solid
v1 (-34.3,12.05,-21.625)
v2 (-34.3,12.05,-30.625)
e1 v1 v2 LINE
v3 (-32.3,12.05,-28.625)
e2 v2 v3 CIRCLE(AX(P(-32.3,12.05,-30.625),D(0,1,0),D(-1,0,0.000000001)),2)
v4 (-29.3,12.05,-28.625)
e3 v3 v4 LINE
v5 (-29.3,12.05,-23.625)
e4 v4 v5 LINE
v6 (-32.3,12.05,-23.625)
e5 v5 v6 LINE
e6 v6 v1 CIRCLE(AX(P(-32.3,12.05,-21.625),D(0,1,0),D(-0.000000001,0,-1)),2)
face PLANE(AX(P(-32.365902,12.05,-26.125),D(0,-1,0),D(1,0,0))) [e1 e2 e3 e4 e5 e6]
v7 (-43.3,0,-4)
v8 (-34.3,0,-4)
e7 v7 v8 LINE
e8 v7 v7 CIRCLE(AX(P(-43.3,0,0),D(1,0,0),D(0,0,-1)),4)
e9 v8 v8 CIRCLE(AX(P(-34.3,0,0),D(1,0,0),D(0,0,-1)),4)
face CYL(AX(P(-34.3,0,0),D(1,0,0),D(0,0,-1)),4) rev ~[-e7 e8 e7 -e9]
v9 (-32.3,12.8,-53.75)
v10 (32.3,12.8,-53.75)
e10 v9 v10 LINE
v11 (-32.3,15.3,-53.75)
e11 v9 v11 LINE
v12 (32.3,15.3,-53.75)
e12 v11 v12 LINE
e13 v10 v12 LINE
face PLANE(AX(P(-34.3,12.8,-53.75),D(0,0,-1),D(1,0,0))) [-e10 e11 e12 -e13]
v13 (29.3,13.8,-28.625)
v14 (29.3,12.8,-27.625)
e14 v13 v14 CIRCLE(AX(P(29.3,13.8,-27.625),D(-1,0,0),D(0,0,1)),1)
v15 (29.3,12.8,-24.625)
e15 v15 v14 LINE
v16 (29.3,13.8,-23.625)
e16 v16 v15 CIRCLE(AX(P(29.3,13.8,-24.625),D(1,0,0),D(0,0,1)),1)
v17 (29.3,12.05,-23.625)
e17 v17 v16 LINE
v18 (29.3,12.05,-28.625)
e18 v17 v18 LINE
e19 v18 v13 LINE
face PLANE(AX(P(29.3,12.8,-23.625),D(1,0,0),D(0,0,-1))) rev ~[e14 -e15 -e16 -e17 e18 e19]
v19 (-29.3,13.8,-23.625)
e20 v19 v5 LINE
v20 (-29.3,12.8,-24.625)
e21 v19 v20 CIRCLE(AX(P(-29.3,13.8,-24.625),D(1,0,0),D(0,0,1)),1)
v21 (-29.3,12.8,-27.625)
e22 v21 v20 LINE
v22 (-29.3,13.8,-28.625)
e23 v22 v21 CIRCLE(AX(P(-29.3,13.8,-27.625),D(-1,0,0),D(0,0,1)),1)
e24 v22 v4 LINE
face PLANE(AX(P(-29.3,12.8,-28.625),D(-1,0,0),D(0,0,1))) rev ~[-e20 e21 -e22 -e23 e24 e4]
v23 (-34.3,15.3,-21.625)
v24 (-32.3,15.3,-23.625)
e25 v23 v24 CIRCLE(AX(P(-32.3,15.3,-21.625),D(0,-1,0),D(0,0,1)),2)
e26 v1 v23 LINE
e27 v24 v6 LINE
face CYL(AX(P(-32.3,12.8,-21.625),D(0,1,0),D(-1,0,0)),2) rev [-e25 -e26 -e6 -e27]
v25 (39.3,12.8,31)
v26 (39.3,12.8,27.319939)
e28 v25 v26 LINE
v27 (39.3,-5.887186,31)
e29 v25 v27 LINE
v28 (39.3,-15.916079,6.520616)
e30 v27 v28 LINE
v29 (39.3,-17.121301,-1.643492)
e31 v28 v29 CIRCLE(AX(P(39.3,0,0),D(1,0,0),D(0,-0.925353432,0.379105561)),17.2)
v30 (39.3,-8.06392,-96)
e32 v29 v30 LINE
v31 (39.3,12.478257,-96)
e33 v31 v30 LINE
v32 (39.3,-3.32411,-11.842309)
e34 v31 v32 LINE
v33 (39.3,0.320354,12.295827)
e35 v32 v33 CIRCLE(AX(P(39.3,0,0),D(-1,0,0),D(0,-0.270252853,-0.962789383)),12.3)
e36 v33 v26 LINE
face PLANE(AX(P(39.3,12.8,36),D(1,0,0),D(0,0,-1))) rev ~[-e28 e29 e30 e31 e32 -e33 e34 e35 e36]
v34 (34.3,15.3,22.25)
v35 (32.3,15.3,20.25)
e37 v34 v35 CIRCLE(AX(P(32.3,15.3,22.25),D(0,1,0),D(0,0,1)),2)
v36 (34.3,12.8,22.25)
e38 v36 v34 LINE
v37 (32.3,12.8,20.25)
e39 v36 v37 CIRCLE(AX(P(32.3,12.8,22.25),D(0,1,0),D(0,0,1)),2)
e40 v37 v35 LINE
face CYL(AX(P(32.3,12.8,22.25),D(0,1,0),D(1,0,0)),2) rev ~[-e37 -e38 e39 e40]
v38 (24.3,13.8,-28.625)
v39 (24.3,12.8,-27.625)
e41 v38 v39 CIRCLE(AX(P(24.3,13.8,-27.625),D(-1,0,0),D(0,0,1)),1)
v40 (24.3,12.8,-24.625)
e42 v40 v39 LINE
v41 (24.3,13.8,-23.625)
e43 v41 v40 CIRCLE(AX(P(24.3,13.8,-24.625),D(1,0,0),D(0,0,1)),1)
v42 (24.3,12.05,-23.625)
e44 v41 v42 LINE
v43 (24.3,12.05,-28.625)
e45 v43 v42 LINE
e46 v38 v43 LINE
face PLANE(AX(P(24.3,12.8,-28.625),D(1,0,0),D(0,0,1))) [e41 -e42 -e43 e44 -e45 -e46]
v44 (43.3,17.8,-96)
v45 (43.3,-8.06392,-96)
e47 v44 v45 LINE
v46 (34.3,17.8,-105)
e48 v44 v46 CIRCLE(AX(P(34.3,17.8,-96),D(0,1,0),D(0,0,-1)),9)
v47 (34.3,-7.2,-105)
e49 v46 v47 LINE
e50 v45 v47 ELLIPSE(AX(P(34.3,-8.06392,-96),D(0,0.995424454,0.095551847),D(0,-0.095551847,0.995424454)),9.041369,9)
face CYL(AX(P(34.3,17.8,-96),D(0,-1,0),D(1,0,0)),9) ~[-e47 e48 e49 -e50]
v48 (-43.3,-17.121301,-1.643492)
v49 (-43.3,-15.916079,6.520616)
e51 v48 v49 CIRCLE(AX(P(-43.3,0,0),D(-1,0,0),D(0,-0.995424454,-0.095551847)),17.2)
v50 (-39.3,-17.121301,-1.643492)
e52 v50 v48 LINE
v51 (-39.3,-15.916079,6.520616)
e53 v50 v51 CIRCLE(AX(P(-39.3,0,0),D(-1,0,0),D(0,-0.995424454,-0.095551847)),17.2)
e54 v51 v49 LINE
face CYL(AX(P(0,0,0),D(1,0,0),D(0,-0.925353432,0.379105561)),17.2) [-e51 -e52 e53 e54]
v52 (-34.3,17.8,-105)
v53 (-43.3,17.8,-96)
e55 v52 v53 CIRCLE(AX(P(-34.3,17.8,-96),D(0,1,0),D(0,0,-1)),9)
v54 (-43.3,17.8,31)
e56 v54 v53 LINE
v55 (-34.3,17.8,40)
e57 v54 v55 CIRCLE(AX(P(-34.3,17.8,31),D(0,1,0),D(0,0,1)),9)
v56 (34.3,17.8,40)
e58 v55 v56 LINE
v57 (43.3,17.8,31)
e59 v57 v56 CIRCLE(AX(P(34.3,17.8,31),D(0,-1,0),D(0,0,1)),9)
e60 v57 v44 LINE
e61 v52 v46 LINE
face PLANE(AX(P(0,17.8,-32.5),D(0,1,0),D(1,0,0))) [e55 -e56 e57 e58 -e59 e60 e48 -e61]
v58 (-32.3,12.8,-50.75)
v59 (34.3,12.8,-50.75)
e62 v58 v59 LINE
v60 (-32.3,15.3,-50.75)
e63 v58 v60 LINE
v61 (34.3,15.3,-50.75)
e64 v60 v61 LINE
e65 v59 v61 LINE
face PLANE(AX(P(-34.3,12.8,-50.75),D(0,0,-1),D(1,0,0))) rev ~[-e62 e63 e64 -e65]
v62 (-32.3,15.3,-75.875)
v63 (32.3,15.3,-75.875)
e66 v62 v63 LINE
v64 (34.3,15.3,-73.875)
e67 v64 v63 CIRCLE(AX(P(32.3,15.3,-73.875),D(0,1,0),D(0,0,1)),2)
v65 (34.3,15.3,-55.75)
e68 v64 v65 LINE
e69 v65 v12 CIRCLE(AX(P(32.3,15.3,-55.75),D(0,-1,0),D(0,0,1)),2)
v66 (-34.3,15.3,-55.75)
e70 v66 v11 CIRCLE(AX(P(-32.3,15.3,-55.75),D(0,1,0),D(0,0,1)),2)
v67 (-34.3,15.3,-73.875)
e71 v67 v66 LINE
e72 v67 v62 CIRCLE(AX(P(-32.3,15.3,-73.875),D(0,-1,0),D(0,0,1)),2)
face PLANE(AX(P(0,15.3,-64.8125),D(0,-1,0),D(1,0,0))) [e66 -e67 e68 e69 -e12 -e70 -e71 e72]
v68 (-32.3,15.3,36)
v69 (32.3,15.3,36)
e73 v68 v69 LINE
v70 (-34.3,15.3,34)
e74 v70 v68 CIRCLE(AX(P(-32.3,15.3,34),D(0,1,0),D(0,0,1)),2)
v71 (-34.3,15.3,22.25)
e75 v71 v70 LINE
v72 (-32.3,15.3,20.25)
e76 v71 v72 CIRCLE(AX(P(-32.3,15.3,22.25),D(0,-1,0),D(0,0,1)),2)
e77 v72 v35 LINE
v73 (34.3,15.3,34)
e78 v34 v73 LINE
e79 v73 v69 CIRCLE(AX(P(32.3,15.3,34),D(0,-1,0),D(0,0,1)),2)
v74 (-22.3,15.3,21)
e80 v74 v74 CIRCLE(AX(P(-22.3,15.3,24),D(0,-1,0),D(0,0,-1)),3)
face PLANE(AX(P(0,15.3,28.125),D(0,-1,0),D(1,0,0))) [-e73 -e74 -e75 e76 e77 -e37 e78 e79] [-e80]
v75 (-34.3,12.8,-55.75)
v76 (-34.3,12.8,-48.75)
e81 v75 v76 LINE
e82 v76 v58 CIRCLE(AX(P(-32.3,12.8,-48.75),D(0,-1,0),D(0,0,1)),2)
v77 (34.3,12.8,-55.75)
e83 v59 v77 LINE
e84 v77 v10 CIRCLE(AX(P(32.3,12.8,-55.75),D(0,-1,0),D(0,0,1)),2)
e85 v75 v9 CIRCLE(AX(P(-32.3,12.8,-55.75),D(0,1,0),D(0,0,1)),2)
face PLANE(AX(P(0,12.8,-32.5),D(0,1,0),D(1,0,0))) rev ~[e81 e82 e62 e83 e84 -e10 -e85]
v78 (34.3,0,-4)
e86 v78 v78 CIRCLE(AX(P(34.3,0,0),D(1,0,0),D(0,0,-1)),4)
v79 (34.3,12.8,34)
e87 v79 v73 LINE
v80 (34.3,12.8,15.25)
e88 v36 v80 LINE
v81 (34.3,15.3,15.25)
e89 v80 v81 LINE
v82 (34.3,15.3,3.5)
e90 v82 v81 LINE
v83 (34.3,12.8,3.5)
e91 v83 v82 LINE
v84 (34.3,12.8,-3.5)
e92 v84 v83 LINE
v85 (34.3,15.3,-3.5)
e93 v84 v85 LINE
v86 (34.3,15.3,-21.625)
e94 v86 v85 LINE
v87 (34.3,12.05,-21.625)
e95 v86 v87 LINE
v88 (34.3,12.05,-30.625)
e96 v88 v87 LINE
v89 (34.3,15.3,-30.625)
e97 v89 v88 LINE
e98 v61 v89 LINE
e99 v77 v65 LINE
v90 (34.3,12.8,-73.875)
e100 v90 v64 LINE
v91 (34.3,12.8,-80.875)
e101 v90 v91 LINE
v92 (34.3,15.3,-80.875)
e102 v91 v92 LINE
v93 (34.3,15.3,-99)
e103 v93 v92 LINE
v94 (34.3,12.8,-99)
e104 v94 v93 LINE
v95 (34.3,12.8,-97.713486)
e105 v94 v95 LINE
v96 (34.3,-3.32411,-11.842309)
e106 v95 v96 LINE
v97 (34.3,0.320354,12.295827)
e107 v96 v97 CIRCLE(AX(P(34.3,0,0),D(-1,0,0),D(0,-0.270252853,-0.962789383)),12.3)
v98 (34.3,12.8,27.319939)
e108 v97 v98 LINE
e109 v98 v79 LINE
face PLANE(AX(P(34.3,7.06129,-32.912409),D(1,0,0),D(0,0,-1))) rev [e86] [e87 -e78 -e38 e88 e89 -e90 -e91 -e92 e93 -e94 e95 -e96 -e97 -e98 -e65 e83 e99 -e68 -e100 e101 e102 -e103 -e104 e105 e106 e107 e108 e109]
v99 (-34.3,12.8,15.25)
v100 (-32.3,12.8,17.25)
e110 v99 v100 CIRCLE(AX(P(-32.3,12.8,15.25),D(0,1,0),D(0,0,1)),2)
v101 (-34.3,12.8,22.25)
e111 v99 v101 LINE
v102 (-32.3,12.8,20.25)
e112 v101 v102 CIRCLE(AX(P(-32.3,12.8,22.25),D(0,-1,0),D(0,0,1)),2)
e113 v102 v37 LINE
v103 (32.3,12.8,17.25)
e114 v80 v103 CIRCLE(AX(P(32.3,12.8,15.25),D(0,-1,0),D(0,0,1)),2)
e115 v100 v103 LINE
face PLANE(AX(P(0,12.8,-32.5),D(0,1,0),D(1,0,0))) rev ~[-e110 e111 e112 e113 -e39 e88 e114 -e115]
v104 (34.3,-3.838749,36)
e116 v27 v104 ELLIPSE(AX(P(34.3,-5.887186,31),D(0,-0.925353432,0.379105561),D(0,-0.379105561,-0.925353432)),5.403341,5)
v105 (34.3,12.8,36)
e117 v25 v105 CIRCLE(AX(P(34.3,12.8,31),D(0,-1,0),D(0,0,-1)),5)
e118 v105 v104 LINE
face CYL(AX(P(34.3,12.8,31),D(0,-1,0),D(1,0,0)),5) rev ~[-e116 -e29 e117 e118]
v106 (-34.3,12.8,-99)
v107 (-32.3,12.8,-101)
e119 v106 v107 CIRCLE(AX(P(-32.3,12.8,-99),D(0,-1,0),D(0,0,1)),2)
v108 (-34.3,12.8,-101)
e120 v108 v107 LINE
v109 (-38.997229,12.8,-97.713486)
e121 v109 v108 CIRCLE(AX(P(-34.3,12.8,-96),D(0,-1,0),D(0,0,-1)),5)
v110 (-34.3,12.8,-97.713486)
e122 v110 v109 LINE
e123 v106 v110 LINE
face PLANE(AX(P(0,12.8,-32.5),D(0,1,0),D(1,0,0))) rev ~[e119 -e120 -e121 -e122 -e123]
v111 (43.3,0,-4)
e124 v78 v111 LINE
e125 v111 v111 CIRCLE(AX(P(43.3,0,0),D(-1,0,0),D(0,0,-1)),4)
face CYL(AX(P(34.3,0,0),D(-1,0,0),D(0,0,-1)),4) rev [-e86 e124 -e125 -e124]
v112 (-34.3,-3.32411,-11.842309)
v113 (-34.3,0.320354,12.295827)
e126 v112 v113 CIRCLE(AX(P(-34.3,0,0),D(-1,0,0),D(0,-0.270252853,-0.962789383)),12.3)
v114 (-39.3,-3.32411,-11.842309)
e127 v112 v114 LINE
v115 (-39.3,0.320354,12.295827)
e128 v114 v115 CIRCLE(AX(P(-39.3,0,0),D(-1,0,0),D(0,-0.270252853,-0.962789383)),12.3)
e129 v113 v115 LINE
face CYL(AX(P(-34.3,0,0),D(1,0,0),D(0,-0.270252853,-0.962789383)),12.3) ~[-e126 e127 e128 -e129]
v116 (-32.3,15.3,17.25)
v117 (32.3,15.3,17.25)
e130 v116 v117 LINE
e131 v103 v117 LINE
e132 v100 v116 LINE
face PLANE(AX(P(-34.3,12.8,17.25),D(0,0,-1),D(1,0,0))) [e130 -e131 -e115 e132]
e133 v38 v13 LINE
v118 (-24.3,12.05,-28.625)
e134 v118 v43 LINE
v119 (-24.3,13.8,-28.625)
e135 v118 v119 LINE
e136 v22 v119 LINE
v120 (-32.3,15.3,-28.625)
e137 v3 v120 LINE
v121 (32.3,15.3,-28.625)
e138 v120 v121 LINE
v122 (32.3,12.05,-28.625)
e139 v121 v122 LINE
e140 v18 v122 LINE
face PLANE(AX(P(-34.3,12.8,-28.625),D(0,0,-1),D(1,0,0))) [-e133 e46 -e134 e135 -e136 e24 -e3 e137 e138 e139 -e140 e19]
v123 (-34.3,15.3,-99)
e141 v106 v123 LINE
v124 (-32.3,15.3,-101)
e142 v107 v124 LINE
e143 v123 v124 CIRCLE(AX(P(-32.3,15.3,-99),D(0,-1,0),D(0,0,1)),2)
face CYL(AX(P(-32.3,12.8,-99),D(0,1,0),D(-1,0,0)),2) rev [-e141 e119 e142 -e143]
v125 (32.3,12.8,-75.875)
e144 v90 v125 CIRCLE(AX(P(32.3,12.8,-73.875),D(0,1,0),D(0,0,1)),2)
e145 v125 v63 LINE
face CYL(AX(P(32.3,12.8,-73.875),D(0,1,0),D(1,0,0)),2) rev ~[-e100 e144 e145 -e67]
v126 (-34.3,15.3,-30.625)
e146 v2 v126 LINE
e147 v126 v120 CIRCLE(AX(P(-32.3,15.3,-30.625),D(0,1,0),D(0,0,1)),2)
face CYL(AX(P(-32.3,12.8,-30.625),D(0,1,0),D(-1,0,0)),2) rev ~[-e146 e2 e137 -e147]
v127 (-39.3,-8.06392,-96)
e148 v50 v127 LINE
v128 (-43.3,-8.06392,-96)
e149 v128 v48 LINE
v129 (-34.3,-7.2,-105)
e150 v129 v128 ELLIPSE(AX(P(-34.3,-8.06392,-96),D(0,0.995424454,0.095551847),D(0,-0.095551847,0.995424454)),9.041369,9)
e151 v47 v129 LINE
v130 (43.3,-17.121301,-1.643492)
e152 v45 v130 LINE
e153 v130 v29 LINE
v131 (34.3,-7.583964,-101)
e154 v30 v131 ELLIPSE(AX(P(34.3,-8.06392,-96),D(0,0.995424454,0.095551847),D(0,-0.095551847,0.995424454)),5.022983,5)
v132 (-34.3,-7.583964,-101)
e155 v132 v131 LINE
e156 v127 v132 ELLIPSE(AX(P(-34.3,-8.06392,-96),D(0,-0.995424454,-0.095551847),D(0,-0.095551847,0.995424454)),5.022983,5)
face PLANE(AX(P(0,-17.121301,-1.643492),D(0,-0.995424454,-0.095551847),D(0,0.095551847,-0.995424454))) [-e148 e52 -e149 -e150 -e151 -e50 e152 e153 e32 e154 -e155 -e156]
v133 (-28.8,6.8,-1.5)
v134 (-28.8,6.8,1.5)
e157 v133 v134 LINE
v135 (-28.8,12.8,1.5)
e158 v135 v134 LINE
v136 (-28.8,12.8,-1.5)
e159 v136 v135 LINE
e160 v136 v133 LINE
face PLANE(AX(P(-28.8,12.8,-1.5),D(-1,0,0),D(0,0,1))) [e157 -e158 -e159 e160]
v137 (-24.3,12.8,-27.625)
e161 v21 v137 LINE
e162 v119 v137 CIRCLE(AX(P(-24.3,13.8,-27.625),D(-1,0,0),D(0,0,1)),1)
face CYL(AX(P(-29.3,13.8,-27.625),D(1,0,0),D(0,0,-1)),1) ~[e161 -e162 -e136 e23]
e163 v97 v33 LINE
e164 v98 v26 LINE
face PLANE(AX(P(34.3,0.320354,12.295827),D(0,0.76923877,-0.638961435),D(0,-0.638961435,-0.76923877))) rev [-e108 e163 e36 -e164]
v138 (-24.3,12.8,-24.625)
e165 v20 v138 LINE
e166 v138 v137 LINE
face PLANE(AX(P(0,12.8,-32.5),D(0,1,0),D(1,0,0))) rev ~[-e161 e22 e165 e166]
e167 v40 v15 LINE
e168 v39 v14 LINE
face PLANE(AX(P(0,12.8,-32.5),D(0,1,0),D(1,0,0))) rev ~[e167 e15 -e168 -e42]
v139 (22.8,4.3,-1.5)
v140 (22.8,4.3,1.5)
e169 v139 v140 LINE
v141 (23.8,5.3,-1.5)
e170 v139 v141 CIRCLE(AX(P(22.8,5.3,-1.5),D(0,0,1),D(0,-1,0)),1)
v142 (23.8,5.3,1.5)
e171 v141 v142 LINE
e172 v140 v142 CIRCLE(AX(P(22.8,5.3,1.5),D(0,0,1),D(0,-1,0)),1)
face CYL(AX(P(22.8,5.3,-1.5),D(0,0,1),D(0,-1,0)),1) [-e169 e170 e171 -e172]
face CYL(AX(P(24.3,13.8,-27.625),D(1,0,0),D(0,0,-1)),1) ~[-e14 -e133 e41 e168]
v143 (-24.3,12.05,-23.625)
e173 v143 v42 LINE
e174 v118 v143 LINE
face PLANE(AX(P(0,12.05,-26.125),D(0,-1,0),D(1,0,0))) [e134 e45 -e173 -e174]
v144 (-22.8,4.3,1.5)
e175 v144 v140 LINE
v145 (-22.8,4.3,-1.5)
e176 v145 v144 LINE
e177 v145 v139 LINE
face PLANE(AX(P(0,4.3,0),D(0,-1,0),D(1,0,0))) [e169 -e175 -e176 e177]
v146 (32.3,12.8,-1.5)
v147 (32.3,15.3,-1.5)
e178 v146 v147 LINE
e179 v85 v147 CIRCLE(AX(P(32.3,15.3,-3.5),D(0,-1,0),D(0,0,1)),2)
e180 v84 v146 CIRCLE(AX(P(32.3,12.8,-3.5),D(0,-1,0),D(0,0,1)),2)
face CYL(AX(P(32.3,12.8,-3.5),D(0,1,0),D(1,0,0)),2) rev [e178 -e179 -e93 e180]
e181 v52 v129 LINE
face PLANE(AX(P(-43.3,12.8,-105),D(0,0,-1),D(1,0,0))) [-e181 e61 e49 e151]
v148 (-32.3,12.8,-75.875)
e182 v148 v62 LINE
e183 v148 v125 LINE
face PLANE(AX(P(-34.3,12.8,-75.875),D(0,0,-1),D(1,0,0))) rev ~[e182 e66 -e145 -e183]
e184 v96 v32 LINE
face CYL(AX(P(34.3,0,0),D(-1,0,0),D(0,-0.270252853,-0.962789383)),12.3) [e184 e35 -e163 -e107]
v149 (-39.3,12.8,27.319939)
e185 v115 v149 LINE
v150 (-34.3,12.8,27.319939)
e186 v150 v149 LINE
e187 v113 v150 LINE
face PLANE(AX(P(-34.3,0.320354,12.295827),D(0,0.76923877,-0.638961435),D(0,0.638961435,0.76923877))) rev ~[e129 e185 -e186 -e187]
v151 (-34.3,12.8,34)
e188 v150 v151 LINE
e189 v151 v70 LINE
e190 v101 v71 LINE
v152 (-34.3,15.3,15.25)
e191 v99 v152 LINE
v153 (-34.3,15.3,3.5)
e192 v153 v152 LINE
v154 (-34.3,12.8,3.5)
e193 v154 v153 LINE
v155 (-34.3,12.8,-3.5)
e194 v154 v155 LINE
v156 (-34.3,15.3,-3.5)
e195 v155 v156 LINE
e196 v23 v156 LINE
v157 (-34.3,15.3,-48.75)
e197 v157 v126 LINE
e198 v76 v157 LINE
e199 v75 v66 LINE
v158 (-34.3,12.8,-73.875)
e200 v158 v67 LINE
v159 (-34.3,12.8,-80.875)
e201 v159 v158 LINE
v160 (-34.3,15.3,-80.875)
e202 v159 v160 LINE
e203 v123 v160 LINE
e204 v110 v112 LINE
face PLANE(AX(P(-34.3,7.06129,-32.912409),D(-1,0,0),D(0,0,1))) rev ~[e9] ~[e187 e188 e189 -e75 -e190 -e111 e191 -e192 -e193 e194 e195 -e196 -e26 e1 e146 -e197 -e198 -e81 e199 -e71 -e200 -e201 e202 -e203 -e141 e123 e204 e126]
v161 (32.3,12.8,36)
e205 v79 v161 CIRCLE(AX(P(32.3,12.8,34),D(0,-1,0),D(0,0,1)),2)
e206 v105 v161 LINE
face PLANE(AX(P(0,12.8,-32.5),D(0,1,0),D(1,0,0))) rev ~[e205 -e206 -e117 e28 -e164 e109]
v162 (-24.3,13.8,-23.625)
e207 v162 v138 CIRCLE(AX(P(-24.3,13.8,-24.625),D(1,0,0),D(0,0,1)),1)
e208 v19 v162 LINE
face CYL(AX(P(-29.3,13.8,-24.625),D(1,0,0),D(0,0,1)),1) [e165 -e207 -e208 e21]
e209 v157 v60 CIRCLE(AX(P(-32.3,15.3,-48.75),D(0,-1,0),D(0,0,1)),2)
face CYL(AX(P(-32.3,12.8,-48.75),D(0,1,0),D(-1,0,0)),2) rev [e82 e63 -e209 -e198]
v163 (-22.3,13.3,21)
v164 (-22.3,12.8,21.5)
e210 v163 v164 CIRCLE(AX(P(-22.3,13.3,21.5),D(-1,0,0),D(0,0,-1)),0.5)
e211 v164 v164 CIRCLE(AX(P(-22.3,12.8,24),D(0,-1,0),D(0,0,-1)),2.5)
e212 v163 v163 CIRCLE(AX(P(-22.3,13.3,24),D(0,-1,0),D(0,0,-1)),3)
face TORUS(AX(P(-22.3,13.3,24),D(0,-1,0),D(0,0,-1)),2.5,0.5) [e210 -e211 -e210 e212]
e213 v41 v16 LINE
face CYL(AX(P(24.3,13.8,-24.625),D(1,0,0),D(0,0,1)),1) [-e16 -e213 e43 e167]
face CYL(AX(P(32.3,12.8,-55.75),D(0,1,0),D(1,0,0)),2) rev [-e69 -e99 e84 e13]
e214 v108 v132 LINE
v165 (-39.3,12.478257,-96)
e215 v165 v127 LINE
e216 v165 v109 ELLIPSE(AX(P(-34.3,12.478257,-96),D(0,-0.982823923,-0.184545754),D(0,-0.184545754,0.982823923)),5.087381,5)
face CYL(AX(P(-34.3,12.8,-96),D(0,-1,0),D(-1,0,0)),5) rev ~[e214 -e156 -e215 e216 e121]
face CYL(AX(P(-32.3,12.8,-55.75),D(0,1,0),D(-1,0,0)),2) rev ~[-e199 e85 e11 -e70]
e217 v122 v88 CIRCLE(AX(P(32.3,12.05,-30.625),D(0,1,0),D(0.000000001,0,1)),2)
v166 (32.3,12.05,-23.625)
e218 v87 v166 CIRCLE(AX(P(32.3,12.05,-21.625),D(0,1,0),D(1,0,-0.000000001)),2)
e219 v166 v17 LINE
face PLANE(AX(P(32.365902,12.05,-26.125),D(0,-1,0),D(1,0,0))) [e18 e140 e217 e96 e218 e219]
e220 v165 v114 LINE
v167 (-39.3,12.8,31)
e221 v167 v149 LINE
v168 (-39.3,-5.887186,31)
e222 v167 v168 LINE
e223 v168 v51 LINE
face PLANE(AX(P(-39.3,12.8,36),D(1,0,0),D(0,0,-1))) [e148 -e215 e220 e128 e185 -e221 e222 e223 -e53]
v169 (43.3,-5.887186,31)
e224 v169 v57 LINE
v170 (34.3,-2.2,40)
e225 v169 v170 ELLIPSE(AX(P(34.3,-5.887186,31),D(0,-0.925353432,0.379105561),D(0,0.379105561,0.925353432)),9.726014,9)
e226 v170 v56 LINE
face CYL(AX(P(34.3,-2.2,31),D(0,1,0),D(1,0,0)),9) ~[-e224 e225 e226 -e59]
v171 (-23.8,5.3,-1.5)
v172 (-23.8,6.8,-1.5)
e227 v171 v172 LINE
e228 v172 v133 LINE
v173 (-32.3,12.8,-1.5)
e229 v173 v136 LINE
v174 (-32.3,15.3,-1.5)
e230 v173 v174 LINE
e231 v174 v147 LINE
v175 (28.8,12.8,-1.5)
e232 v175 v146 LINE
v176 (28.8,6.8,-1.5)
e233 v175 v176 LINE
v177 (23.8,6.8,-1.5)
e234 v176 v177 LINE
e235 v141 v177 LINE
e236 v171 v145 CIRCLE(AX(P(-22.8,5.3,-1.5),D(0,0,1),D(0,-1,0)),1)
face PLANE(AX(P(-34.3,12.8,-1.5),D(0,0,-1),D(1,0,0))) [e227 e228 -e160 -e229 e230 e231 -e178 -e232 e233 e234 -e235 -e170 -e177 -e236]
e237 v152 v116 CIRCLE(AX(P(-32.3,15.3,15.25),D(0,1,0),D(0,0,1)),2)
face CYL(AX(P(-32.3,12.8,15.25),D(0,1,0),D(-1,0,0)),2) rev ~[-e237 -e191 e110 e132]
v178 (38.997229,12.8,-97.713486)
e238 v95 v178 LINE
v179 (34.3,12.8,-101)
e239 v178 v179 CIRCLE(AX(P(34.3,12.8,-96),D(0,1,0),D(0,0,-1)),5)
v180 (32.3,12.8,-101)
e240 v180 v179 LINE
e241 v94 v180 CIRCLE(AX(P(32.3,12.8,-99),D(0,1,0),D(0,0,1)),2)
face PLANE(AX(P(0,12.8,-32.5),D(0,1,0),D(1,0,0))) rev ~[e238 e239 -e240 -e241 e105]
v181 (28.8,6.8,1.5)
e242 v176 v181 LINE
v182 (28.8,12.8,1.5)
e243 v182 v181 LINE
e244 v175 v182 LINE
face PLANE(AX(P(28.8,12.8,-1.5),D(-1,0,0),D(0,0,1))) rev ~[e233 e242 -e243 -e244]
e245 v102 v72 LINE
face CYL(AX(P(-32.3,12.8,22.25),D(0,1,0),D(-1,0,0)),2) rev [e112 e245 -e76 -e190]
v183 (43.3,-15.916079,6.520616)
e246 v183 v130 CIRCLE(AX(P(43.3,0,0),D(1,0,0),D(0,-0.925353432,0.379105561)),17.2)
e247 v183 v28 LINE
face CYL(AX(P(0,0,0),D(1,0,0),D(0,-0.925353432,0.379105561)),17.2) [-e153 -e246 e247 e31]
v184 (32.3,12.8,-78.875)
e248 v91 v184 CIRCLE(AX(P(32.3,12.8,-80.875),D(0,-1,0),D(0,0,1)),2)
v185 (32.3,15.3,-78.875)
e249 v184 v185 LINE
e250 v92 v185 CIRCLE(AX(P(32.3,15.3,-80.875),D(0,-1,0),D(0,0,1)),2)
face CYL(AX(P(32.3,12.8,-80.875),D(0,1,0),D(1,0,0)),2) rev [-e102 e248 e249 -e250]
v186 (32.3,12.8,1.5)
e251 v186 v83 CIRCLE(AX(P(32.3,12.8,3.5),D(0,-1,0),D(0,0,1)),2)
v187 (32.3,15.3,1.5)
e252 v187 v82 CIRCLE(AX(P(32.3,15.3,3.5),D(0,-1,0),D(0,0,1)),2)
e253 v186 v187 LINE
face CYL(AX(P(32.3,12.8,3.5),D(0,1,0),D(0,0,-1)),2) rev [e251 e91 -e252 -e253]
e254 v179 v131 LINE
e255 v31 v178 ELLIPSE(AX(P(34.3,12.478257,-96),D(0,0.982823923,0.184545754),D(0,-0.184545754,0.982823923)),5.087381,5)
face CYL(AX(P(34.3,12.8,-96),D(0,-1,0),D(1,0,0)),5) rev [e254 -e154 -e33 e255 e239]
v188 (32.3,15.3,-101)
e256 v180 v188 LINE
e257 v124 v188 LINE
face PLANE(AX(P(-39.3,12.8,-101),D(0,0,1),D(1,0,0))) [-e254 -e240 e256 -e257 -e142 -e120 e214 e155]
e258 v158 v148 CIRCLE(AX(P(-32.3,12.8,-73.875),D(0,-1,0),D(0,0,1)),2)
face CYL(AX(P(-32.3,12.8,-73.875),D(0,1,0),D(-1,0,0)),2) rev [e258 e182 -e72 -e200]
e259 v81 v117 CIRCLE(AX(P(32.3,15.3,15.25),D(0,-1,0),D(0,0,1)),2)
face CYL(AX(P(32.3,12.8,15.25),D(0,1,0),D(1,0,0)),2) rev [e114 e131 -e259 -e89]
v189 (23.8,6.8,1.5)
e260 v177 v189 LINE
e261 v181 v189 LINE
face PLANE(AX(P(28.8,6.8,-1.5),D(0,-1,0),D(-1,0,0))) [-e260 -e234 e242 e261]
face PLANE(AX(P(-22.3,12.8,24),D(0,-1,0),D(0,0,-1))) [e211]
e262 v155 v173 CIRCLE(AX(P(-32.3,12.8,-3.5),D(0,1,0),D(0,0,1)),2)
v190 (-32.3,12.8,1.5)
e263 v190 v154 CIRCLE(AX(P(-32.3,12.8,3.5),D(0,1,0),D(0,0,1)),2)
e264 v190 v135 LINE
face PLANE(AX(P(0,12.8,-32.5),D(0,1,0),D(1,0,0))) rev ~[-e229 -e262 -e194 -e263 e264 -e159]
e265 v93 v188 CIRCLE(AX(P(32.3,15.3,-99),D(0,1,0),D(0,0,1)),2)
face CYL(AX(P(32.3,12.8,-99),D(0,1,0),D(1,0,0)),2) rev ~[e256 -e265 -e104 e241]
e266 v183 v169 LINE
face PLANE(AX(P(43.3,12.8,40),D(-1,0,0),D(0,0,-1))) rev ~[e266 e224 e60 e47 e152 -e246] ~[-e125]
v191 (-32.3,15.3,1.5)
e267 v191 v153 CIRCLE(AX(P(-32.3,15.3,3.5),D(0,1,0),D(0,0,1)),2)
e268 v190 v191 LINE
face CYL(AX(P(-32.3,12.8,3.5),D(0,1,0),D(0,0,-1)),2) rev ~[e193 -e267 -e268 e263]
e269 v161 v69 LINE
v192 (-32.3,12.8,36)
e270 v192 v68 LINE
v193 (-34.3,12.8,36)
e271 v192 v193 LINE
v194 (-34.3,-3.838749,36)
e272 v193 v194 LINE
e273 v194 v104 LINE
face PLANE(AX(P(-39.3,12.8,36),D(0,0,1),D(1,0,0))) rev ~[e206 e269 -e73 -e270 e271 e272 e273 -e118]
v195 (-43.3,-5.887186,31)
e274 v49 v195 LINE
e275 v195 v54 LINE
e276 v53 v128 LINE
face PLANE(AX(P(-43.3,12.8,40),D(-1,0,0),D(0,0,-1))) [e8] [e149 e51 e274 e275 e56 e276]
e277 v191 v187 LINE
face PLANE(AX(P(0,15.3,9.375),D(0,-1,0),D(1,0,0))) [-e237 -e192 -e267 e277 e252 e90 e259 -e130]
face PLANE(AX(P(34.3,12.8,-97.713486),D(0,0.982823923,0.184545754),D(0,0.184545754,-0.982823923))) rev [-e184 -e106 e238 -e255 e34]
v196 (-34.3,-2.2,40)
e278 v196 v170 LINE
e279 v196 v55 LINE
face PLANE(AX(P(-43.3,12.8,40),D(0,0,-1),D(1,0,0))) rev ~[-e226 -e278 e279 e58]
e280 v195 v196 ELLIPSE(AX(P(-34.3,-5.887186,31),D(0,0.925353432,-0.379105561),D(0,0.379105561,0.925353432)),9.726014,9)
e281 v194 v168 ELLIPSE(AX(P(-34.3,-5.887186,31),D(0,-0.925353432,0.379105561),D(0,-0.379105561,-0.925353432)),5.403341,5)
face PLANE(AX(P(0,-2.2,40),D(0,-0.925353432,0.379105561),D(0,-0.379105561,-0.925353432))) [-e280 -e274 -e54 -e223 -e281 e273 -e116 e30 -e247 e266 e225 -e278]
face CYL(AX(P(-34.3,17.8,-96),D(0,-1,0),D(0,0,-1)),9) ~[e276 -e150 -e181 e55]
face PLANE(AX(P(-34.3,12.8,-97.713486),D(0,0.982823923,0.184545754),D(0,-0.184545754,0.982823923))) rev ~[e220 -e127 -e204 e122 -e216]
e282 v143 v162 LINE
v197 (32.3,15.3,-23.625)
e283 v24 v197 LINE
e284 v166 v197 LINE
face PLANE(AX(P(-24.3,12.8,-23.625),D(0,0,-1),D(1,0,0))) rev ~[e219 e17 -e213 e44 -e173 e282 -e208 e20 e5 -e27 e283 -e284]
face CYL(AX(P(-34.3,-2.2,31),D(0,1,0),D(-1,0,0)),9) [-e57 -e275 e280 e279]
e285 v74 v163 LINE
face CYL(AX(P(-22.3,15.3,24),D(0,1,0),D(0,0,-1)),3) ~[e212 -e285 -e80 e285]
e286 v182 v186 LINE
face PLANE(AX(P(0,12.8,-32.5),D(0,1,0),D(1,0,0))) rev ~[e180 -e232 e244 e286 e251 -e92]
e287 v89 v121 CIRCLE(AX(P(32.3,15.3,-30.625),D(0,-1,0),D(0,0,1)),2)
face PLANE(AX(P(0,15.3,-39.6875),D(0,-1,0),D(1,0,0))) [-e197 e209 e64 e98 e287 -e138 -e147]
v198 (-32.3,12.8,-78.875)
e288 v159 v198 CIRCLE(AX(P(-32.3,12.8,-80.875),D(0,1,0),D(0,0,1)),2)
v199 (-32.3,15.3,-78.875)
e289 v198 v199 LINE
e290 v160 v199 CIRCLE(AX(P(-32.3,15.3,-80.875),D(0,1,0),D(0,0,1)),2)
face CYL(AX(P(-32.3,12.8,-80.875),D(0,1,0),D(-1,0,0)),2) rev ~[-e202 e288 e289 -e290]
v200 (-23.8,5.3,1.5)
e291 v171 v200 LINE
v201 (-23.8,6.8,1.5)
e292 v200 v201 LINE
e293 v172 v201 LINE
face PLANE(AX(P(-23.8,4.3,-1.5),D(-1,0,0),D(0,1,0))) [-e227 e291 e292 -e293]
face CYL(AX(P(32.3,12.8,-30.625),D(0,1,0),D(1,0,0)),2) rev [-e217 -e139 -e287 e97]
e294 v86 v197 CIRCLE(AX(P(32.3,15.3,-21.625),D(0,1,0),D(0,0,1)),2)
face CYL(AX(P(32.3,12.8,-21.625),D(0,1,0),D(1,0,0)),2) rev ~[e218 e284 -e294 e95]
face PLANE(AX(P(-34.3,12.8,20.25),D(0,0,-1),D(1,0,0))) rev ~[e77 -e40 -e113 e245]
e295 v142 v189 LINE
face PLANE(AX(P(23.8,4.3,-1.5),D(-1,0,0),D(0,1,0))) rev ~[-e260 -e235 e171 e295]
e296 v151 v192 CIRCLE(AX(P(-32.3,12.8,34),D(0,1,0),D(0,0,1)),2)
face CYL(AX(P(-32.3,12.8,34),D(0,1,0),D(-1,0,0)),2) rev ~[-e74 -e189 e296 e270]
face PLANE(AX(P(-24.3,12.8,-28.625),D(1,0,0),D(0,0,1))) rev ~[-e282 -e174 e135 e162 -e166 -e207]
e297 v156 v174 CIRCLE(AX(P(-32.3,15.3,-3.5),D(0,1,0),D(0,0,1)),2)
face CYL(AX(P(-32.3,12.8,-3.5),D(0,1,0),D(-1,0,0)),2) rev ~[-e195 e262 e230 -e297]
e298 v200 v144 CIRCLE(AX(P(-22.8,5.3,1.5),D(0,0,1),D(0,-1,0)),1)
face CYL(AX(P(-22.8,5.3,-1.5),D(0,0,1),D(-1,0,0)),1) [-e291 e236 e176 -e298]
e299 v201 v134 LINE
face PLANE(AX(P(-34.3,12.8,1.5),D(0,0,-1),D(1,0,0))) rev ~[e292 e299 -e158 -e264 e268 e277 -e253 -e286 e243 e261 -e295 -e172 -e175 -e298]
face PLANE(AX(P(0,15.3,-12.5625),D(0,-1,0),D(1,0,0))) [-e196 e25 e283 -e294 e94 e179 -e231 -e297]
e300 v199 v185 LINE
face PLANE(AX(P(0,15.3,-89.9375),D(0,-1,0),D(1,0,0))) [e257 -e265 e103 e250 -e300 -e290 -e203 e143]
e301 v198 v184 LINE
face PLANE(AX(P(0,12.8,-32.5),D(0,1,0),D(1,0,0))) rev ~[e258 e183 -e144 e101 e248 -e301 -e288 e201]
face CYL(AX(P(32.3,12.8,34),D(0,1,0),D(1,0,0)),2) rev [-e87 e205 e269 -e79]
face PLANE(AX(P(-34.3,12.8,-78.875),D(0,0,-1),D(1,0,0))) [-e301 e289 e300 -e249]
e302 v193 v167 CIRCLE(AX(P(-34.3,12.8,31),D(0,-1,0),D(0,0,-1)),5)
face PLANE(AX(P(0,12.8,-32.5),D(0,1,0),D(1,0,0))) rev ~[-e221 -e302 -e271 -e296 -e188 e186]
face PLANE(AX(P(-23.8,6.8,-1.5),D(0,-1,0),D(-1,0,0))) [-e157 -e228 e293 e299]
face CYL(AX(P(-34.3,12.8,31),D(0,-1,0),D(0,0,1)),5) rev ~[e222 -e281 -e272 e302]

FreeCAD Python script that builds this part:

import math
import FreeCAD as App
import Part
import Sketcher

V = App.Vector
Q = App.Units.Quantity


def edges_at(feature, points):
    """Names of the edges that pass closest to the given points."""
    edges = feature.Shape.Edges
    near = lambda p: min(range(len(edges)), key=lambda i: edges[i].distToShape(Part.Vertex(*p))[0])
    return sorted({f"Edge{near(p) + 1}" for p in points})


def add_polygon(sketch, points):
    """Adds a closed chain of lines whose ends are joined by coincident constraints."""
    first, n = sketch.GeometryCount, len(points)
    for a, b in zip(points, points[1:] + points[:1]):
        sketch.addGeometry(Part.LineSegment(App.Vector(*a, 0), App.Vector(*b, 0)), False)
    for i in range(n):
        sketch.addConstraint(Sketcher.Constraint("Coincident", first + i, 2, first + (i + 1) % n, 1))

doc = App.newDocument("Part")
body = doc.addObject("PartDesign::Body", "Body")

sketch1 = doc.addObject("Sketcher::SketchObject", "Sketch")
body.addObject(sketch1)
sketch1.AttachmentSupport = (doc.XZ_Plane, [""])
sketch1.MapMode = "FlatFace"
sketch1.AttachmentOffset = App.Placement(V(0, 0, -12.8), App.Rotation())
add_polygon(sketch1, [(-43, -105), (-43, 40), (43, 40), (43, -105)])
add_polygon(sketch1, [(39, 36), (-39, 36), (-39, -101), (39, -101)])
sketch1.addConstraint(Sketcher.Constraint("Vertical", 0))
sketch1.addConstraint(Sketcher.Constraint("Horizontal", 1))
sketch1.addConstraint(Sketcher.Constraint("Vertical", 2))
sketch1.addConstraint(Sketcher.Constraint("Horizontal", 3))
sketch1.addConstraint(Sketcher.Constraint("Horizontal", 4))
sketch1.addConstraint(Sketcher.Constraint("Vertical", 5))
sketch1.addConstraint(Sketcher.Constraint("Horizontal", 6))
sketch1.addConstraint(Sketcher.Constraint("Vertical", 7))
sketch1.addConstraint(Sketcher.Constraint("DistanceY", 0, 1, 0, 2, Q("145 mm")))
sketch1.addConstraint(Sketcher.Constraint("DistanceY", 5, 2, 5, 1, Q("137 mm")))
sketch1.addConstraint(Sketcher.Constraint("DistanceX", 1, 1, 1, 2, Q("86.6 mm")))
sketch1.addConstraint(Sketcher.Constraint("DistanceX", 4, 2, 4, 1, Q("78.6 mm")))
sketch1.addConstraint(Sketcher.Constraint("DistanceY", -1, 1, 0, 2, Q("40 mm")))
sketch1.addConstraint(Sketcher.Constraint("DistanceY", -1, 1, 4, 2, Q("36 mm")))
sketch1.addConstraint(Sketcher.Constraint("DistanceX", 0, 2, 4, 2, Q("4 mm")))
sketch1.addConstraint(Sketcher.Constraint("DistanceX", 0, 2, -1, 1, Q("43.3 mm")))
pad1 = doc.addObject("PartDesign::Pad", "Pad")
body.addObject(pad1)
pad1.Profile = sketch1
pad1.Length = 30

sketch2 = doc.addObject("Sketcher::SketchObject", "Sketch001")
body.addObject(sketch2)
sketch2.AttachmentSupport = (doc.XZ_Plane, [""])
sketch2.MapMode = "FlatFace"
sketch2.AttachmentOffset = App.Placement(V(0, 0, -12.8), App.Rotation())
add_polygon(sketch2, [(-43, -105), (-43, 40), (43, 40), (43, -105)])
sketch2.addConstraint(Sketcher.Constraint("Vertical", 0))
sketch2.addConstraint(Sketcher.Constraint("Horizontal", 1))
sketch2.addConstraint(Sketcher.Constraint("Vertical", 2))
sketch2.addConstraint(Sketcher.Constraint("Horizontal", 3))
sketch2.addConstraint(Sketcher.Constraint("DistanceY", 0, 1, 0, 2, Q("145 mm")))
sketch2.addConstraint(Sketcher.Constraint("DistanceX", 1, 1, 1, 2, Q("86.6 mm")))
sketch2.addConstraint(Sketcher.Constraint("DistanceY", -1, 1, 0, 2, Q("40 mm")))
sketch2.addConstraint(Sketcher.Constraint("DistanceX", 0, 2, -1, 1, Q("43.3 mm")))
pad2 = doc.addObject("PartDesign::Pad", "Pad001")
body.addObject(pad2)
pad2.Profile = sketch2
pad2.Length = 5
pad2.Reversed = True

sketch3 = doc.addObject("Sketcher::SketchObject", "Sketch002")
body.addObject(sketch3)
sketch3.AttachmentSupport = (doc.YZ_Plane, [""])
sketch3.MapMode = "FlatFace"
sketch3.addGeometry(Part.Circle(V(0, 0, 0), V(0, 0, 1), 4), False)
sketch3.addGeometry(Part.LineSegment(V(-15.9, 6.5, 0), V(-2.2, 40, 0)), False)
sketch3.addGeometry(Part.LineSegment(V(-2.2, 40, 0), V(-30, 40, 0)), False)
sketch3.addGeometry(Part.LineSegment(V(-30, 40, 0), V(-30, -105, 0)), False)
sketch3.addGeometry(Part.LineSegment(V(-30, -105, 0), V(-7.2, -105, 0)), False)
sketch3.addGeometry(Part.LineSegment(V(-7.2, -105, 0), V(-17.1, -1.6, 0)), False)
sketch3.addGeometry(Part.ArcOfCircle(Part.Circle(V(0, 0, 0), V(0, 0, 1), 17.2), math.radians(158), math.radians(185)), False)
sketch3.addConstraint(Sketcher.Constraint("Coincident", 1, 2, 2, 1))
sketch3.addConstraint(Sketcher.Constraint("Coincident", 2, 2, 3, 1))
sketch3.addConstraint(Sketcher.Constraint("Coincident", 3, 2, 4, 1))
sketch3.addConstraint(Sketcher.Constraint("Coincident", 4, 2, 5, 1))
sketch3.addConstraint(Sketcher.Constraint("Tangent", 5, 2, 6, 2))
sketch3.addConstraint(Sketcher.Constraint("Tangent", 6, 1, 1, 1))
sketch3.addConstraint(Sketcher.Constraint("Horizontal", 2))
sketch3.addConstraint(Sketcher.Constraint("Vertical", 3))
sketch3.addConstraint(Sketcher.Constraint("Horizontal", 4))
sketch3.addConstraint(Sketcher.Constraint("Coincident", 0, 3, -1, 1))
sketch3.addConstraint(Sketcher.Constraint("Coincident", 6, 3, -1, 1))
sketch3.addConstraint(Sketcher.Constraint("Diameter", 0, Q("8 mm")))
sketch3.addConstraint(Sketcher.Constraint("Radius", 6, Q("17.2 mm")))
sketch3.addConstraint(Sketcher.Constraint("DistanceY", 3, 2, 3, 1, Q("145 mm")))
sketch3.addConstraint(Sketcher.Constraint("DistanceX", 2, 2, 2, 1, Q("27.8 mm")))
sketch3.addConstraint(Sketcher.Constraint("DistanceX", 4, 1, 4, 2, Q("22.8 mm")))
sketch3.addConstraint(Sketcher.Constraint("DistanceY", -1, 1, 1, 2, Q("40 mm")))
sketch3.addConstraint(Sketcher.Constraint("DistanceX", 2, 2, -1, 1, Q("30 mm")))
pocket1 = doc.addObject("PartDesign::Pocket", "Pocket")
body.addObject(pocket1)
pocket1.Profile = sketch3
pocket1.Length = 113
pocket1.Midplane = True

sketch4 = doc.addObject("Sketcher::SketchObject", "Sketch003")
body.addObject(sketch4)
sketch4.AttachmentSupport = (doc.YZ_Plane, [""])
sketch4.MapMode = "FlatFace"
sketch4.AttachmentOffset = App.Placement(V(0, 0, -34.3), App.Rotation())
sketch4.addGeometry(Part.LineSegment(V(12.8, 27.3, 0), V(0.3, 12.3, 0)), False)
sketch4.addGeometry(Part.ArcOfCircle(Part.Circle(V(0, 0, 0), V(0, 0, 1), 12.3), math.radians(89), math.radians(254)), False)
sketch4.addGeometry(Part.LineSegment(V(-3.3, -11.8, 0), V(12.8, -97.7, 0)), False)
sketch4.addGeometry(Part.LineSegment(V(12.8, -97.7, 0), V(12.8, 27.3, 0)), False)
sketch4.addGeometry(Part.Circle(V(0, 0, 0), V(0, 0, 1), 4), False)
sketch4.addConstraint(Sketcher.Constraint("Coincident", 0, 2, 1, 1))
sketch4.addConstraint(Sketcher.Constraint("Coincident", 1, 2, 2, 1))
sketch4.addConstraint(Sketcher.Constraint("Coincident", 2, 2, 3, 1))
sketch4.addConstraint(Sketcher.Constraint("Coincident", 3, 2, 0, 1))
sketch4.addConstraint(Sketcher.Constraint("Vertical", 3))
sketch4.addConstraint(Sketcher.Constraint("Coincident", 1, 3, -1, 1))
sketch4.addConstraint(Sketcher.Constraint("Coincident", 4, 3, -1, 1))
sketch4.addConstraint(Sketcher.Constraint("Diameter", 4, Q("8 mm")))
sketch4.addConstraint(Sketcher.Constraint("Radius", 1, Q("12.3 mm")))
sketch4.addConstraint(Sketcher.Constraint("DistanceX", -1, 1, 2, 2, Q("12.8 mm")))
sketch4.addConstraint(Sketcher.Constraint("Distance", 0, Q("19.531142 mm")))
sketch4.addConstraint(Sketcher.Constraint("DistanceY", 3, 1, 3, 2, Q("125.033426 mm")))
sketch4.addConstraint(Sketcher.Constraint("DistanceX", 1, 2, -1, 1, Q("3.32411 mm")))
sketch4.addConstraint(Sketcher.Constraint("DistanceY", -1, 1, 3, 2, Q("27.319939 mm")))
pad3 = doc.addObject("PartDesign::Pad", "Pad002")
body.addObject(pad3)
pad3.Profile = sketch4
pad3.Length = 5
pad3.Reversed = True
doc.recompute()

mirrored = doc.addObject("PartDesign::Mirrored", "Mirrored")
body.addObject(mirrored)
mirrored.Originals = [pad3]
mirrored.MirrorPlane = (doc.YZ_Plane, [""])
body.Tip = mirrored

sketch5 = doc.addObject("Sketcher::SketchObject", "Sketch004")
body.addObject(sketch5)
sketch5.AttachmentSupport = (doc.XZ_Plane, [""])
sketch5.MapMode = "FlatFace"
sketch5.AttachmentOffset = App.Placement(V(0, 0, -12.8), App.Rotation())
add_polygon(sketch5, [(-34, 36), (-34, 20), (34, 20), (34, 36)])
add_polygon(sketch5, [(-34, -79), (-34, -101), (34, -101), (34, -79)])
add_polygon(sketch5, [(-34, 17), (-34, 2), (34, 2), (34, 17)])
add_polygon(sketch5, [(-34, -2), (-34, -24), (34, -24), (34, -2)])
add_polygon(sketch5, [(-34, -29), (-34, -51), (34, -51), (34, -29)])
add_polygon(sketch5, [(-34, -54), (-34, -76), (34, -76), (34, -54)])
sketch5.addConstraint(Sketcher.Constraint("Vertical", 0))
sketch5.addConstraint(Sketcher.Constraint("Horizontal", 1))
sketch5.addConstraint(Sketcher.Constraint("Vertical", 2))
sketch5.addConstraint(Sketcher.Constraint("Horizontal", 3))
sketch5.addConstraint(Sketcher.Constraint("Vertical", 4))
sketch5.addConstraint(Sketcher.Constraint("Horizontal", 5))
sketch5.addConstraint(Sketcher.Constraint("Vertical", 6))
sketch5.addConstraint(Sketcher.Constraint("Horizontal", 7))
sketch5.addConstraint(Sketcher.Constraint("Vertical", 8))
sketch5.addConstraint(Sketcher.Constraint("Horizontal", 9))
sketch5.addConstraint(Sketcher.Constraint("Vertical", 10))
sketch5.addConstraint(Sketcher.Constraint("Horizontal", 11))
sketch5.addConstraint(Sketcher.Constraint("Vertical", 12))
sketch5.addConstraint(Sketcher.Constraint("Horizontal", 13))
sketch5.addConstraint(Sketcher.Constraint("Vertical", 14))
sketch5.addConstraint(Sketcher.Constraint("Horizontal", 15))
sketch5.addConstraint(Sketcher.Constraint("Vertical", 16))
sketch5.addConstraint(Sketcher.Constraint("Horizontal", 17))
sketch5.addConstraint(Sketcher.Constraint("Vertical", 18))
sketch5.addConstraint(Sketcher.Constraint("Horizontal", 19))
sketch5.addConstraint(Sketcher.Constraint("Vertical", 20))
sketch5.addConstraint(Sketcher.Constraint("Horizontal", 21))
sketch5.addConstraint(Sketcher.Constraint("Vertical", 22))
sketch5.addConstraint(Sketcher.Constraint("Horizontal", 23))
sketch5.addConstraint(Sketcher.Constraint("Symmetric", 8, 2, 14, 2, -1, 1))
sketch5.addConstraint(Sketcher.Constraint("Vertical", 3, 2, 4, 2))
sketch5.addConstraint(Sketcher.Constraint("Vertical", 2, 2, 5, 2))
sketch5.addConstraint(Sketcher.Constraint("Vertical", 7, 2, 8, 2))
sketch5.addConstraint(Sketcher.Constraint("Vertical", 6, 2, 9, 2))
sketch5.addConstraint(Sketcher.Constraint("Vertical", 11, 2, 12, 2))
sketch5.addConstraint(Sketcher.Constraint("Vertical", 10, 2, 13, 2))
sketch5.addConstraint(Sketcher.Constraint("Vertical", 15, 2, 16, 2))
sketch5.addConstraint(Sketcher.Constraint("Vertical", 14, 2, 17, 2))
sketch5.addConstraint(Sketcher.Constraint("Vertical", 19, 2, 20, 2))
sketch5.addConstraint(Sketcher.Constraint("Vertical", 18, 2, 21, 2))
sketch5.addConstraint(Sketcher.Constraint("Equal", 2, 8))
sketch5.addConstraint(Sketcher.Constraint("Equal", 6, 12))
sketch5.addConstraint(Sketcher.Constraint("Equal", 14, 16))
sketch5.addConstraint(Sketcher.Constraint("Equal", 18, 20))
sketch5.addConstraint(Sketcher.Constraint("DistanceX", 1, 1, 1, 2, Q("68.6 mm")))
sketch5.addConstraint(Sketcher.Constraint("DistanceY", -1, 1, 2, 2, Q("36 mm")))
sketch5.addConstraint(Sketcher.Constraint("DistanceY", 4, 2, -1, 1, Q("101 mm")))
sketch5.addConstraint(Sketcher.Constraint("DistanceY", 10, 2, 1, 2, Q("3 mm")))
sketch5.addConstraint(Sketcher.Constraint("DistanceY", 14, 2, 9, 2, Q("3 mm")))
sketch5.addConstraint(Sketcher.Constraint("DistanceY", 18, 2, 13, 2, Q("5 mm")))
sketch5.addConstraint(Sketcher.Constraint("DistanceY", 7, 2, 20, 2, Q("3 mm")))
sketch5.addConstraint(Sketcher.Constraint("DistanceY", 22, 2, 17, 2, Q("3 mm")))
pocket2 = doc.addObject("PartDesign::Pocket", "Pocket001")
body.addObject(pocket2)
pocket2.Profile = sketch5
pocket2.Length = 2.5
doc.recompute()

fillet = doc.addObject("PartDesign::Fillet", "Fillet")
body.addObject(fillet)
fillet.Base = (pocket2, edges_at(pocket2, [
    (43.3, 7.8, 40),
    (-43.3, 7.8, 40),
    (43.3, 5.3, -105),
    (-43.3, 5.3, -105),
]))
fillet.Radius = 9

sketch6 = doc.addObject("Sketcher::SketchObject", "Sketch005")
body.addObject(sketch6)
sketch6.AttachmentSupport = (doc.XZ_Plane, [""])
sketch6.MapMode = "FlatFace"
sketch6.AttachmentOffset = App.Placement(V(0, 0, -12.8), App.Rotation())
add_polygon(sketch6, [(-28.8, 1.5), (-28.8, -1.5), (28.8, -1.5), (28.8, 1.5)])
sketch6.addConstraint(Sketcher.Constraint("Vertical", 0))
sketch6.addConstraint(Sketcher.Constraint("Horizontal", 1))
sketch6.addConstraint(Sketcher.Constraint("Vertical", 2))
sketch6.addConstraint(Sketcher.Constraint("Horizontal", 3))
sketch6.addConstraint(Sketcher.Constraint("Symmetric", 0, 2, 2, 2, -1, 1))
sketch6.addConstraint(Sketcher.Constraint("DistanceY", 0, 2, 0, 1, Q("3 mm")))
sketch6.addConstraint(Sketcher.Constraint("DistanceX", 1, 1, 1, 2, Q("57.6 mm")))
pad4 = doc.addObject("PartDesign::Pad", "Pad003")
body.addObject(pad4)
pad4.Profile = sketch6
pad4.Length = 8.5

sketch7 = doc.addObject("Sketcher::SketchObject", "Sketch006")
body.addObject(sketch7)
sketch7.AttachmentSupport = (doc.XY_Plane, [""])
sketch7.MapMode = "FlatFace"
sketch7.AttachmentOffset = App.Placement(V(0, 0, -1.5), App.Rotation())
add_polygon(sketch7, [(28.8, 6.8), (28.8, 4.3), (23.8, 4.3), (23.8, 6.8)])
add_polygon(sketch7, [(-23.8, 6.8), (-23.8, 4.3), (-28.8, 4.3), (-28.8, 6.8)])
sketch7.addConstraint(Sketcher.Constraint("Vertical", 0))
sketch7.addConstraint(Sketcher.Constraint("Horizontal", 1))
sketch7.addConstraint(Sketcher.Constraint("Vertical", 2))
sketch7.addConstraint(Sketcher.Constraint("Horizontal", 3))
sketch7.addConstraint(Sketcher.Constraint("Vertical", 4))
sketch7.addConstraint(Sketcher.Constraint("Horizontal", 5))
sketch7.addConstraint(Sketcher.Constraint("Vertical", 6))
sketch7.addConstraint(Sketcher.Constraint("Horizontal", 7))
sketch7.addConstraint(Sketcher.Constraint("Symmetric", 1, 2, 4, 2, -2))
sketch7.addConstraint(Sketcher.Constraint("Symmetric", 3, 2, 6, 2, -2))
sketch7.addConstraint(Sketcher.Constraint("DistanceX", 1, 2, 1, 1, Q("5 mm")))
sketch7.addConstraint(Sketcher.Constraint("DistanceY", 0, 2, 0, 1, Q("2.5 mm")))
sketch7.addConstraint(Sketcher.Constraint("DistanceX", -1, 1, 0, 2, Q("28.8 mm")))
sketch7.addConstraint(Sketcher.Constraint("DistanceY", -1, 1, 0, 2, Q("4.3 mm")))
pocket3 = doc.addObject("PartDesign::Pocket", "Pocket002")
body.addObject(pocket3)
pocket3.Profile = sketch7
pocket3.Length = 5
pocket3.Reversed = True
doc.recompute()

fillet2 = doc.addObject("PartDesign::Fillet", "Fillet001")
body.addObject(fillet2)
fillet2.Base = (pocket3, edges_at(pocket3, [(-23.8, 4.3, 0), (23.8, 4.3, 0)]))
fillet2.Radius = 1
doc.recompute()

fillet3 = doc.addObject("PartDesign::Fillet", "Fillet002")
body.addObject(fillet3)
fillet3.Base = (fillet2, edges_at(fillet2, [
    (-34.3, 14.05, 20.25),
    (-34.3, 14.05, 36),
    (34.3, 14.05, 36),
    (34.3, 14.05, 20.25),
    (-34.3, 14.05, -75.875),
    (-34.3, 14.05, -53.75),
    (34.3, 14.05, -53.75),
    (34.3, 14.05, -75.875),
    (34.3, 14.05, -78.875),
    (34.3, 14.05, -101),
    (-34.3, 14.05, -101),
    (-34.3, 14.05, -78.875),
    (-34.3, 14.05, 1.5),
    (-34.3, 14.05, 17.25),
    (34.3, 14.05, 17.25),
    (34.3, 14.05, 1.5),
    (-34.3, 14.05, -23.625),
    (-34.3, 14.05, -1.5),
    (34.3, 14.05, -1.5),
    (34.3, 14.05, -23.625),
    (-34.3, 14.05, -50.75),
    (-34.3, 14.05, -28.625),
    (34.3, 14.05, -28.625),
]))
fillet3.Radius = 2
doc.recompute()

fillet4 = doc.addObject("PartDesign::Fillet", "Fillet003")
body.addObject(fillet4)
fillet4.Base = (fillet3, edges_at(fillet3, [
    (39.3, 4.481, 36),
    (-39.3, 4.481, 36),
    (39.3, 2.608, -101),
    (-39.3, 2.608, -101),
]))
fillet4.Radius = 5

sketch8 = doc.addObject("Sketcher::SketchObject", "Sketch007")
body.addObject(sketch8)
sketch8.AttachmentSupport = (doc.XZ_Plane, [""])
sketch8.MapMode = "FlatFace"
sketch8.AttachmentOffset = App.Placement(V(0, 0, -15.3), App.Rotation())
sketch8.addGeometry(Part.Circle(V(-22.3, 24, 0), V(0, 0, 1), 3), False)
sketch8.addConstraint(Sketcher.Constraint("Diameter", 0, Q("6 mm")))
sketch8.addConstraint(Sketcher.Constraint("DistanceY", -1, 1, 0, 3, Q("24 mm")))
sketch8.addConstraint(Sketcher.Constraint("DistanceX", 0, 3, -1, 1, Q("22.3 mm")))
pad5 = doc.addObject("PartDesign::Pad", "Pad004")
body.addObject(pad5)
pad5.Profile = sketch8
pad5.Length = 2.5
doc.recompute()

fillet5 = doc.addObject("PartDesign::Fillet", "Fillet004")
body.addObject(fillet5)
fillet5.Base = (pad5, edges_at(pad5, [(-22.3, 12.8, 27)]))
fillet5.Radius = 0.5

sketch9 = doc.addObject("Sketcher::SketchObject", "Sketch008")
body.addObject(sketch9)
sketch9.AttachmentSupport = (doc.XZ_Plane, [""])
sketch9.MapMode = "FlatFace"
sketch9.AttachmentOffset = App.Placement(V(0, 0, -12.8), App.Rotation())
sketch9.addGeometry(Part.LineSegment(V(-29.3, -23.6, 0), V(-32.3, -23.6, 0)), False)
sketch9.addGeometry(Part.ArcOfCircle(Part.Circle(V(-32.3, -21.6, 0), V(0, 0, 1), 2), math.radians(-180), math.radians(-90)), False)
sketch9.addGeometry(Part.LineSegment(V(-34.3, -21.6, 0), V(-34.3, -30.6, 0)), False)
sketch9.addGeometry(Part.ArcOfCircle(Part.Circle(V(-32.3, -30.6, 0), V(0, 0, 1), 2), math.radians(90), math.radians(180)), False)
sketch9.addGeometry(Part.LineSegment(V(-32.3, -28.6, 0), V(-29.3, -28.6, 0)), False)
sketch9.addGeometry(Part.LineSegment(V(-29.3, -28.6, 0), V(-29.3, -23.6, 0)), False)
sketch9.addGeometry(Part.LineSegment(V(32.3, -23.6, 0), V(29.3, -23.6, 0)), False)
sketch9.addGeometry(Part.LineSegment(V(29.3, -23.6, 0), V(29.3, -28.6, 0)), False)
sketch9.addGeometry(Part.LineSegment(V(29.3, -28.6, 0), V(32.3, -28.6, 0)), False)
sketch9.addGeometry(Part.ArcOfCircle(Part.Circle(V(32.3, -30.6, 0), V(0, 0, 1), 2), math.radians(0), math.radians(90)), False)
sketch9.addGeometry(Part.LineSegment(V(34.3, -30.6, 0), V(34.3, -21.6, 0)), False)
sketch9.addGeometry(Part.ArcOfCircle(Part.Circle(V(32.3, -21.6, 0), V(0, 0, 1), 2), math.radians(-90), math.radians(0)), False)
add_polygon(sketch9, [(-24.3, -23.6), (-24.3, -28.6), (24.3, -28.6), (24.3, -23.6)])
sketch9.addConstraint(Sketcher.Constraint("Tangent", 0, 2, 1, 2))
sketch9.addConstraint(Sketcher.Constraint("Tangent", 1, 1, 2, 1))
sketch9.addConstraint(Sketcher.Constraint("Tangent", 2, 2, 3, 2))
sketch9.addConstraint(Sketcher.Constraint("Tangent", 3, 1, 4, 1))
sketch9.addConstraint(Sketcher.Constraint("Coincident", 4, 2, 5, 1))
sketch9.addConstraint(Sketcher.Constraint("Coincident", 5, 2, 0, 1))
sketch9.addConstraint(Sketcher.Constraint("Coincident", 6, 2, 7, 1))
sketch9.addConstraint(Sketcher.Constraint("Coincident", 7, 2, 8, 1))
sketch9.addConstraint(Sketcher.Constraint("Tangent", 8, 2, 9, 2))
sketch9.addConstraint(Sketcher.Constraint("Tangent", 9, 1, 10, 1))
sketch9.addConstraint(Sketcher.Constraint("Tangent", 10, 2, 11, 2))
sketch9.addConstraint(Sketcher.Constraint("Tangent", 11, 1, 6, 1))
sketch9.addConstraint(Sketcher.Constraint("Horizontal", 0))
sketch9.addConstraint(Sketcher.Constraint("Vertical", 2))
sketch9.addConstraint(Sketcher.Constraint("Horizontal", 4))
sketch9.addConstraint(Sketcher.Constraint("Vertical", 5))
sketch9.addConstraint(Sketcher.Constraint("Horizontal", 6))
sketch9.addConstraint(Sketcher.Constraint("Vertical", 7))
sketch9.addConstraint(Sketcher.Constraint("Horizontal", 8))
sketch9.addConstraint(Sketcher.Constraint("Vertical", 10))
sketch9.addConstraint(Sketcher.Constraint("Vertical", 12))
sketch9.addConstraint(Sketcher.Constraint("Horizontal", 13))
sketch9.addConstraint(Sketcher.Constraint("Vertical", 14))
sketch9.addConstraint(Sketcher.Constraint("Horizontal", 15))
sketch9.addConstraint(Sketcher.Constraint("Equal", 1, 3))
sketch9.addConstraint(Sketcher.Constraint("Equal", 3, 9))
sketch9.addConstraint(Sketcher.Constraint("Equal", 9, 11))
sketch9.addConstraint(Sketcher.Constraint("Symmetric", 3, 3, 9, 3, -2))
sketch9.addConstraint(Sketcher.Constraint("Symmetric", 5, 2, 6, 2, -2))
sketch9.addConstraint(Sketcher.Constraint("Horizontal", 8, 2, 12, 2))
sketch9.addConstraint(Sketcher.Constraint("Horizontal", 11, 1, 14, 2))
sketch9.addConstraint(Sketcher.Constraint("Radius", 1, Q("2 mm")))
sketch9.addConstraint(Sketcher.Constraint("DistanceX", 0, 2, 0, 1, Q("3 mm")))
sketch9.addConstraint(Sketcher.Constraint("DistanceY", 2, 2, 2, 1, Q("9 mm")))
sketch9.addConstraint(Sketcher.Constraint("DistanceX", 13, 1, 13, 2, Q("48.6 mm")))
sketch9.addConstraint(Sketcher.Constraint("DistanceX", 4, 2, 12, 2, Q("5 mm")))
sketch9.addConstraint(Sketcher.Constraint("DistanceX", 13, 2, 7, 2, Q("5 mm")))
sketch9.addConstraint(Sketcher.Constraint("DistanceY", 1, 3, -1, 1, Q("21.625 mm")))
pad6 = doc.addObject("PartDesign::Pad", "Pad005")
body.addObject(pad6)
pad6.Profile = sketch9
pad6.Length = 1.5
pad6.Midplane = True
doc.recompute()

fillet6 = doc.addObject("PartDesign::Fillet", "Fillet005")
body.addObject(fillet6)
fillet6.Base = (pad6, edges_at(pad6, [
    (26.8, 12.8, -28.625),
    (-26.8, 12.8, -23.625),
    (26.8, 12.8, -23.625),
    (-26.8, 12.8, -28.625),
]))
fillet6.Radius = 1

doc.recompute()
